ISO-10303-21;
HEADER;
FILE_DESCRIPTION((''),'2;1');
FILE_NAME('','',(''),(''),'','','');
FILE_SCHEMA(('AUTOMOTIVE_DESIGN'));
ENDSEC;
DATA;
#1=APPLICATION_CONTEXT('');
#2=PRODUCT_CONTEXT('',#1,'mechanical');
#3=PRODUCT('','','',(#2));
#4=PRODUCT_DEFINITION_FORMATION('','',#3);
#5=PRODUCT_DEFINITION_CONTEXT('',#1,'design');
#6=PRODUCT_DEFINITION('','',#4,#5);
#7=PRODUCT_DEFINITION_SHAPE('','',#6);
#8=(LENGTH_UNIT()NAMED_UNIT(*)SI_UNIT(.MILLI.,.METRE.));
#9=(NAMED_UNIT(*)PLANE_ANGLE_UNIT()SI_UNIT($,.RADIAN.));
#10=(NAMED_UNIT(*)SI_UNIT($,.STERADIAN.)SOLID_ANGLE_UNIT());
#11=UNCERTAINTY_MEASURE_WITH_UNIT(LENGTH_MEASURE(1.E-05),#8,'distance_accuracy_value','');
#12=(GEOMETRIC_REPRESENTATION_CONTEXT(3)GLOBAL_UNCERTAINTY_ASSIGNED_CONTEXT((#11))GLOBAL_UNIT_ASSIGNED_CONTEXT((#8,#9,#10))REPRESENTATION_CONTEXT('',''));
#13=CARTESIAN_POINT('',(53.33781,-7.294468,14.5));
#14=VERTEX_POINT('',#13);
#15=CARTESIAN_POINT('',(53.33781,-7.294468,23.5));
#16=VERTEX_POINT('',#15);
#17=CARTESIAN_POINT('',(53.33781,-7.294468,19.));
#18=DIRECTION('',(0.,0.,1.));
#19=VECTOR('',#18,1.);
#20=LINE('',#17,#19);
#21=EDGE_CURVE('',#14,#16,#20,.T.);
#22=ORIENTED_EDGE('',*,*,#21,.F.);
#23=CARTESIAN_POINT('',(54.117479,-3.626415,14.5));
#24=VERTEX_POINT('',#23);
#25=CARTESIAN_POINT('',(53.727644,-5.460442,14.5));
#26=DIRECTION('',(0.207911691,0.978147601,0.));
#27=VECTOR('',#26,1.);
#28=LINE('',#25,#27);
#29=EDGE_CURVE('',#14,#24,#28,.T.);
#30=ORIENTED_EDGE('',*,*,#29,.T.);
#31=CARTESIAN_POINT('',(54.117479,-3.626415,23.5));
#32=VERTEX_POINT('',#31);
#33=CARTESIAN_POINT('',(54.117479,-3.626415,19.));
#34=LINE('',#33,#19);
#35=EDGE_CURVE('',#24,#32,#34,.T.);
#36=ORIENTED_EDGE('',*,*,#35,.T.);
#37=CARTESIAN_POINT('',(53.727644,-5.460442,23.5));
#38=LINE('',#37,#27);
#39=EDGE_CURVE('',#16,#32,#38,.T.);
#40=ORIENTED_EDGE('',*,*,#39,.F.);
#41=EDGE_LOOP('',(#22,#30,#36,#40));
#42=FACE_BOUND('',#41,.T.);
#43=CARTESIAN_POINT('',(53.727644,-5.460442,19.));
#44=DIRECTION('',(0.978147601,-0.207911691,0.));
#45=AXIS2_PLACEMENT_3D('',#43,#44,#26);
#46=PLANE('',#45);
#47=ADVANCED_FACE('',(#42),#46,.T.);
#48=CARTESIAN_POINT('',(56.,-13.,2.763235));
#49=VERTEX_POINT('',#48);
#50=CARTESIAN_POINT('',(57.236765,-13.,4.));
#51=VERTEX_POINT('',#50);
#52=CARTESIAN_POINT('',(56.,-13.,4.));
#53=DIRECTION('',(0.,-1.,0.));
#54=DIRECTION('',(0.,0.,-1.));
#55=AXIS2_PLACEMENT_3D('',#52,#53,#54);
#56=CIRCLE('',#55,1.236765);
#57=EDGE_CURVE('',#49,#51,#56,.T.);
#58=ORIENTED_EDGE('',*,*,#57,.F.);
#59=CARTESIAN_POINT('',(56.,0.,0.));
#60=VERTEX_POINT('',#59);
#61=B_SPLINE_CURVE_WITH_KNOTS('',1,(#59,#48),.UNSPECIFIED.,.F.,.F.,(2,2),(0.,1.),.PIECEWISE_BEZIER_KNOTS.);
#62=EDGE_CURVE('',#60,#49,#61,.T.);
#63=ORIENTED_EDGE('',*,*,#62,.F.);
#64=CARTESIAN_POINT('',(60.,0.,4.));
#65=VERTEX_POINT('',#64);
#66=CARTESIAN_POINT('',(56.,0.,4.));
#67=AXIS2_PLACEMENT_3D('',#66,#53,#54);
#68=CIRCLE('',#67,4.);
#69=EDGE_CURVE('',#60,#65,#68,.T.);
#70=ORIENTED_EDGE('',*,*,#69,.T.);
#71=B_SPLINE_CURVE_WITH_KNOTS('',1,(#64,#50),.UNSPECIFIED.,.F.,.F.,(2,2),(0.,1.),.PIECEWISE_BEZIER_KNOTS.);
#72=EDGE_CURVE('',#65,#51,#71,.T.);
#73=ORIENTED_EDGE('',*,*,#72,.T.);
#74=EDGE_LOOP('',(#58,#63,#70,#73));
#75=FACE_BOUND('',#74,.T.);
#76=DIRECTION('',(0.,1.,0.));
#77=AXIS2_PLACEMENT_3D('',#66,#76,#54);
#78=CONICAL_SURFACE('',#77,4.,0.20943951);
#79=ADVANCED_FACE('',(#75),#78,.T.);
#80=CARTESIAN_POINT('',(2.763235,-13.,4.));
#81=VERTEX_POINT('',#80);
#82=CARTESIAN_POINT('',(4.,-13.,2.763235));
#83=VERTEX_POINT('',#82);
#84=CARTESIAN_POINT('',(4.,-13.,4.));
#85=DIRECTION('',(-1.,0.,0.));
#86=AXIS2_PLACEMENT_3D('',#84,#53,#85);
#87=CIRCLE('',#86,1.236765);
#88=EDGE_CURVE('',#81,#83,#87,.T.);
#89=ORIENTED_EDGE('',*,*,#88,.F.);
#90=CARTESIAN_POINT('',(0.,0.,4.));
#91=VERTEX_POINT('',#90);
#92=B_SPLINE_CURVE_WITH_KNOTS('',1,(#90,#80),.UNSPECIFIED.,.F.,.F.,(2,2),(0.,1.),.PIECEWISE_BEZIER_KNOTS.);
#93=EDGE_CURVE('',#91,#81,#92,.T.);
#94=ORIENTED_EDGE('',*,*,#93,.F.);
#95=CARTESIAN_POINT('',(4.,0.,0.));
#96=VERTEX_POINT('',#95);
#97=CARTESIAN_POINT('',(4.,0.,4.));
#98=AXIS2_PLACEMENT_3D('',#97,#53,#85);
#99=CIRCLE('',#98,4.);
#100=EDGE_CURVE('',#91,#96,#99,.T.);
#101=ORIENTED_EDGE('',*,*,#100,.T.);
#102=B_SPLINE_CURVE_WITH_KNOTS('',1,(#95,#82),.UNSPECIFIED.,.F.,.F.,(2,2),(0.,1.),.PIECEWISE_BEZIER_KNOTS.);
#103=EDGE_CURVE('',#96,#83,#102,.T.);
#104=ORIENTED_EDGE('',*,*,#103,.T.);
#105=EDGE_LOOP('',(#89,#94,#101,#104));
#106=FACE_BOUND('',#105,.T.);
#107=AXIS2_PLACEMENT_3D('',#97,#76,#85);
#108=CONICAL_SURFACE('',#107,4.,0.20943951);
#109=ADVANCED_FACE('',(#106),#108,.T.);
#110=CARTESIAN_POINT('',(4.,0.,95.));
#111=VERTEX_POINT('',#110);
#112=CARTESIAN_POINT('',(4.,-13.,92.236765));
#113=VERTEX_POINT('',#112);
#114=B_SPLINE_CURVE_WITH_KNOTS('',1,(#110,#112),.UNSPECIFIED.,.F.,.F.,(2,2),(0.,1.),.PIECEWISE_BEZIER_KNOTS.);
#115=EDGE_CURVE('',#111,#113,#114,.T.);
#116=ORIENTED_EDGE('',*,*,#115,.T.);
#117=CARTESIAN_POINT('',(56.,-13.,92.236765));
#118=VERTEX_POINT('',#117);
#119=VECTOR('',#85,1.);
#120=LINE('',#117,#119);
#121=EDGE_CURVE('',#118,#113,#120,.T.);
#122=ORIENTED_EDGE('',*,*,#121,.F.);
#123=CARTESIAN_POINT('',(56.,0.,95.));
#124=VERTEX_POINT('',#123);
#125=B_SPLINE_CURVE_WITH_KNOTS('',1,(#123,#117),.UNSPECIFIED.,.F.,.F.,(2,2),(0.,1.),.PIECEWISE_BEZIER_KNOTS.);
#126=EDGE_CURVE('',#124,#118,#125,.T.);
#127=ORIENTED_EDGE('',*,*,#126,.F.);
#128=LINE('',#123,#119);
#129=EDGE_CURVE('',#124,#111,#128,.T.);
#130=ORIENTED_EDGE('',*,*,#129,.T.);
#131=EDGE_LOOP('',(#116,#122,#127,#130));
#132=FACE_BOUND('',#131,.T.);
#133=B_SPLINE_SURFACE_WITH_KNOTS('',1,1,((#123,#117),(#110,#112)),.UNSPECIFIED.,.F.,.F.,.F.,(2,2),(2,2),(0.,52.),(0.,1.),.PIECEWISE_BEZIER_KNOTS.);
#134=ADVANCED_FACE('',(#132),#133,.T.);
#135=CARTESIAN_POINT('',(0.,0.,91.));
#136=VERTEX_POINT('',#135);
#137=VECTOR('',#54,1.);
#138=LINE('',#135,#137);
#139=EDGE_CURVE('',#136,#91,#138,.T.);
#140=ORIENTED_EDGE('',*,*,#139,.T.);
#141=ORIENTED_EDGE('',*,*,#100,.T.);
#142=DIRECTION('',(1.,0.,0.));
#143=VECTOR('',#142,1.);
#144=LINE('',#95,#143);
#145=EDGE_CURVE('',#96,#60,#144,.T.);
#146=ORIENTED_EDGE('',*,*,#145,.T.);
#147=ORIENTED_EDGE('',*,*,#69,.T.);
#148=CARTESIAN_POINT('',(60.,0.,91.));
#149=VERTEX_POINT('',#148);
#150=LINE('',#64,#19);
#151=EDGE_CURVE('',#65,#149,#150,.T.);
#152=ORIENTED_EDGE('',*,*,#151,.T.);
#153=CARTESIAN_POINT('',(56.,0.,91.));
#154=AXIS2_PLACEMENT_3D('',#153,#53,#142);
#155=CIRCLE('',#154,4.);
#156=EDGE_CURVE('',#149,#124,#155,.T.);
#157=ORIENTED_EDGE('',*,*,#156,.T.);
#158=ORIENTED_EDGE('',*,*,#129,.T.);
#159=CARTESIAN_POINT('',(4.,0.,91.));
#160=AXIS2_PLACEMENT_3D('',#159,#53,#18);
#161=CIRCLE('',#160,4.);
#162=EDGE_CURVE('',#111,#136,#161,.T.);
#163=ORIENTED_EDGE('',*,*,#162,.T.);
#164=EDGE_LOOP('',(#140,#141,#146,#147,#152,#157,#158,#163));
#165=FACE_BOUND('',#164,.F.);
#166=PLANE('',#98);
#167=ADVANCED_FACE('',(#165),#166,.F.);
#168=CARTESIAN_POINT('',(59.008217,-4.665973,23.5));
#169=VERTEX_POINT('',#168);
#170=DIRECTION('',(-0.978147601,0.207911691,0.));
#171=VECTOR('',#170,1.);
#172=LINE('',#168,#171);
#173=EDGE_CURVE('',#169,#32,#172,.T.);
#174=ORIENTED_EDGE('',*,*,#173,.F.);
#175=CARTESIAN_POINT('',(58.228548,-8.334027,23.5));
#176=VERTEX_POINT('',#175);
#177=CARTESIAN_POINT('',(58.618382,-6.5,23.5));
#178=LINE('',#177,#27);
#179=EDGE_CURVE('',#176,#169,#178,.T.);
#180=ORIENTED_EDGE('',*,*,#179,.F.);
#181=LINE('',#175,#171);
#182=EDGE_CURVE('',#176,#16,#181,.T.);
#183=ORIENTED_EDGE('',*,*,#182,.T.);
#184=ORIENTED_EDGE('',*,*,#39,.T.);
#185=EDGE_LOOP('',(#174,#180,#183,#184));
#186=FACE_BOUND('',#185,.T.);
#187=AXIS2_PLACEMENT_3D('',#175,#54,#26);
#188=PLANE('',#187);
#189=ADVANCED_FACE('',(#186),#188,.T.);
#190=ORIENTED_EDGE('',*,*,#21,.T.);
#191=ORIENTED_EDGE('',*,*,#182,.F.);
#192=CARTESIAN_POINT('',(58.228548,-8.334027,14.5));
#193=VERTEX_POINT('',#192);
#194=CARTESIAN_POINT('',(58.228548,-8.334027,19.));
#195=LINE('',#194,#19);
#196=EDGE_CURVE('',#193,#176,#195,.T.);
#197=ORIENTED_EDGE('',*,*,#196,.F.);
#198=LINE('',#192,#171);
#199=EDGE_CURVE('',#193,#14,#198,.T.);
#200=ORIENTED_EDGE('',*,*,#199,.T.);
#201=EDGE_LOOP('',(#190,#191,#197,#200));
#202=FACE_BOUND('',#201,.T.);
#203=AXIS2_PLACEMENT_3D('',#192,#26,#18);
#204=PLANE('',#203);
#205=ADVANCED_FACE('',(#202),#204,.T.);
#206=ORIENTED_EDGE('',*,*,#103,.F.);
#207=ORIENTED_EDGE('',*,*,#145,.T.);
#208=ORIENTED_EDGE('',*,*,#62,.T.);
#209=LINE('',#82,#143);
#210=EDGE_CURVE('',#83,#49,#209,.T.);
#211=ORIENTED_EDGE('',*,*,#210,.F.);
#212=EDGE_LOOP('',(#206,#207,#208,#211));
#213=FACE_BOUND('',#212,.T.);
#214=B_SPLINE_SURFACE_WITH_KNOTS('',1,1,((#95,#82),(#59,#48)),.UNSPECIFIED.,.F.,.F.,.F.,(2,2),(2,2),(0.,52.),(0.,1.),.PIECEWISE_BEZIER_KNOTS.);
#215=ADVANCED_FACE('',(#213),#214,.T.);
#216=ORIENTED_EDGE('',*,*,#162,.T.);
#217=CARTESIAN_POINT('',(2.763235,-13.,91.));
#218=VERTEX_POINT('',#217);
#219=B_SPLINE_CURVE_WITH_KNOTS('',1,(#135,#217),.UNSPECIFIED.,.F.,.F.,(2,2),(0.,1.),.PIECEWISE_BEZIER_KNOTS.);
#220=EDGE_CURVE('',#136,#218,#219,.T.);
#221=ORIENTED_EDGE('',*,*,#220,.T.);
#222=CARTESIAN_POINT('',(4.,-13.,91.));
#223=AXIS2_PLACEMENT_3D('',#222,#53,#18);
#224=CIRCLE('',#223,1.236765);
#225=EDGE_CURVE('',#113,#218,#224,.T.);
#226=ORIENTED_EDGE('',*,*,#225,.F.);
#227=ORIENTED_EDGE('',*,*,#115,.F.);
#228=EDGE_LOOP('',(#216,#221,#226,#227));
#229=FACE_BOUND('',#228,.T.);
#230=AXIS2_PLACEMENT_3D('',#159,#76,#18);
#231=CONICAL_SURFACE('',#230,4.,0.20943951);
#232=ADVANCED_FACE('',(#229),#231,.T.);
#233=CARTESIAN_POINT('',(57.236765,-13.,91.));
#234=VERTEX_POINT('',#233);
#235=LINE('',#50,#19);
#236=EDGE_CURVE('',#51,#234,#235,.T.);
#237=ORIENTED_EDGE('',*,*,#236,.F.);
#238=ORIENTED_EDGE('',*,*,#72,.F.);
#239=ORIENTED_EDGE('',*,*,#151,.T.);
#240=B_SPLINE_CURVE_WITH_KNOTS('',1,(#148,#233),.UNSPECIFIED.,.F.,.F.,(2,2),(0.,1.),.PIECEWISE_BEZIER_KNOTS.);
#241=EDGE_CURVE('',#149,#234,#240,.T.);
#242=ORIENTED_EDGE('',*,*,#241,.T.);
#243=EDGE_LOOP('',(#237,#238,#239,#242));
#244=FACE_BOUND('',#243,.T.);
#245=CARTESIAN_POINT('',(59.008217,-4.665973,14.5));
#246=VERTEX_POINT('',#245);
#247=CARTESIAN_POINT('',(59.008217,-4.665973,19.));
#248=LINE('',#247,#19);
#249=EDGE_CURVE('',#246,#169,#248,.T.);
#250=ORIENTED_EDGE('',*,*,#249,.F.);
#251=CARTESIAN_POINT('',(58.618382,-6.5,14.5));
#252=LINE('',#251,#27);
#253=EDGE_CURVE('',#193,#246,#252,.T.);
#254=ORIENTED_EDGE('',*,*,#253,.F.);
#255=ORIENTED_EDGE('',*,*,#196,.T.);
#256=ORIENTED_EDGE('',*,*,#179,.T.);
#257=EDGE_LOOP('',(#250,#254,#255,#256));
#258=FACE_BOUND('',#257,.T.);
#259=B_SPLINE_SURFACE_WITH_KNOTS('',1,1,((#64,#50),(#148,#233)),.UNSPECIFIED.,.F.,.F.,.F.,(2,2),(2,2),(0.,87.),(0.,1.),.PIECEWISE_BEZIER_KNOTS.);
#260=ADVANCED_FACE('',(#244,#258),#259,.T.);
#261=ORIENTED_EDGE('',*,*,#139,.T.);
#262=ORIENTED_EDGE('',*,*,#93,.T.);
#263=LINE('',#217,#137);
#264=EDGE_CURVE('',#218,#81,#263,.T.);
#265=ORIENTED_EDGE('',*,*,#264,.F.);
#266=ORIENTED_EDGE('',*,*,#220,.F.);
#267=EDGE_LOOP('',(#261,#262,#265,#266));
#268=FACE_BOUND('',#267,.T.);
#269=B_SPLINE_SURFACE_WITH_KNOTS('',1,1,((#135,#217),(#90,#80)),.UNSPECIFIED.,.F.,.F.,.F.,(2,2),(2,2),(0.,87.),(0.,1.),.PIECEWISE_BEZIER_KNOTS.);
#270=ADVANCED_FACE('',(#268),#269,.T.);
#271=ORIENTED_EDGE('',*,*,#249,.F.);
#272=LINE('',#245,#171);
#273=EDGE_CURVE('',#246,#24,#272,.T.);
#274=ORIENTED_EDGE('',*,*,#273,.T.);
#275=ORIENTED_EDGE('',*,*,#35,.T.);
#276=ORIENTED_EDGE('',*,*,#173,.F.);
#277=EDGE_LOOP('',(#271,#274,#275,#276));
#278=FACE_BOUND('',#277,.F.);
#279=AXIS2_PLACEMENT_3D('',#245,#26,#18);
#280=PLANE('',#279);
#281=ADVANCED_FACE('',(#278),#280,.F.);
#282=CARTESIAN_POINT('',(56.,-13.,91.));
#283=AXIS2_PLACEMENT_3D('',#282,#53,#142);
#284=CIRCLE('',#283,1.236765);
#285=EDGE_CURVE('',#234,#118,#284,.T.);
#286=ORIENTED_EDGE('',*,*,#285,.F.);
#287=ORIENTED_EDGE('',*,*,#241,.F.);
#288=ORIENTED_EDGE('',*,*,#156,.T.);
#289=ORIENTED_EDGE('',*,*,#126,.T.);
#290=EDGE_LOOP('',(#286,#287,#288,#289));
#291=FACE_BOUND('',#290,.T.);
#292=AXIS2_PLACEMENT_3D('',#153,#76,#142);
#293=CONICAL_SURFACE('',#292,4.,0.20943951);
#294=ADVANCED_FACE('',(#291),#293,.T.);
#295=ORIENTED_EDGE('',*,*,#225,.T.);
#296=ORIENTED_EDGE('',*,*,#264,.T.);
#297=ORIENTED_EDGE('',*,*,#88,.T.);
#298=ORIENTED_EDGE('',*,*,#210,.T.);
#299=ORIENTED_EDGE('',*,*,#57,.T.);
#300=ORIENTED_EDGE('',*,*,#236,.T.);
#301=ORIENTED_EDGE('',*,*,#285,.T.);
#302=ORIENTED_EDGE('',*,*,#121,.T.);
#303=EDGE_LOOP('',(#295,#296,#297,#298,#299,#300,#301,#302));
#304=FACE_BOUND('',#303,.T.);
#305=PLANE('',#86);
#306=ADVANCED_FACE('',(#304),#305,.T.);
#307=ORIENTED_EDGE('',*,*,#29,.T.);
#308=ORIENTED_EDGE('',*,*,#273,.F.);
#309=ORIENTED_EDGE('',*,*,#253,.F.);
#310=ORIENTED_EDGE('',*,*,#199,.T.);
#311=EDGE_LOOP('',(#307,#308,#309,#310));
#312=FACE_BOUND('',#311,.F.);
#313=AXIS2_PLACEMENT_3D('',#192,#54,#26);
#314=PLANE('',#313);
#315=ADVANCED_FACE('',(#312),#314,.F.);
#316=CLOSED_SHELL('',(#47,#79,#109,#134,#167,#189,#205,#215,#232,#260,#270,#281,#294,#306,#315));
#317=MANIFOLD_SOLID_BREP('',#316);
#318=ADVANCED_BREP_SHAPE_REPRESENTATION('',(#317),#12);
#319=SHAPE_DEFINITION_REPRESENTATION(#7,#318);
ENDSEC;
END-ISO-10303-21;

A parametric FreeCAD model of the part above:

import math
import FreeCAD as App
import Part
import Sketcher


def add_polygon(sketch, points):
    """Adds a closed chain of lines whose ends are joined by coincident constraints."""
    first, n = sketch.GeometryCount, len(points)
    for a, b in zip(points, points[1:] + points[:1]):
        sketch.addGeometry(Part.LineSegment(App.Vector(*a, 0), App.Vector(*b, 0)), False)
    for i in range(n):
        sketch.addConstraint(Sketcher.Constraint("Coincident", first + i, 2, first + (i + 1) % n, 1))

doc = App.newDocument("Part")
body = doc.addObject("PartDesign::Body", "Body")

# Sketch on XZ plane
sketch1 = body.newObject("Sketcher::SketchObject", "Sketch")
sketch1.AttachmentSupport = (doc.getObject("XZ_Plane"), [""])
sketch1.MapMode = "FlatFace"
sketch1.addGeometry([
    Part.ArcOfCircle(Part.Circle(App.Vector(4, 4, 0), App.Vector(0, 0, 1), 4), math.radians(180), math.radians(270)),  # 0
    Part.LineSegment(App.Vector(4, 0, 0), App.Vector(56, 0, 0)),  # 1
    Part.ArcOfCircle(Part.Circle(App.Vector(56, 4, 0), App.Vector(0, 0, 1), 4), math.radians(-90), math.radians(0)),  # 2
    Part.LineSegment(App.Vector(60, 4, 0), App.Vector(60, 91, 0)),  # 3
    Part.ArcOfCircle(Part.Circle(App.Vector(56, 91, 0), App.Vector(0, 0, 1), 4), math.radians(0), math.radians(90)),  # 4
    Part.LineSegment(App.Vector(56, 95, 0), App.Vector(4, 95, 0)),  # 5
    Part.ArcOfCircle(Part.Circle(App.Vector(4, 91, 0), App.Vector(0, 0, 1), 4), math.radians(90), math.radians(180)),  # 6
    Part.LineSegment(App.Vector(0, 91, 0), App.Vector(0, 4, 0)),  # 7
], False)
sketch1.addConstraint([
    Sketcher.Constraint("Tangent", 0, 2, 1, 1),
    Sketcher.Constraint("Tangent", 1, 2, 2, 1),
    Sketcher.Constraint("Tangent", 2, 2, 3, 1),
    Sketcher.Constraint("Tangent", 3, 2, 4, 1),
    Sketcher.Constraint("Tangent", 4, 2, 5, 1),
    Sketcher.Constraint("Tangent", 5, 2, 6, 1),
    Sketcher.Constraint("Tangent", 6, 2, 7, 1),
    Sketcher.Constraint("Tangent", 7, 2, 0, 1),
    Sketcher.Constraint("Horizontal", 1),
    Sketcher.Constraint("Vertical", 3),
    Sketcher.Constraint("Horizontal", 5),
    Sketcher.Constraint("Vertical", 7),
    Sketcher.Constraint("Equal", 0, 2),
    Sketcher.Constraint("Equal", 2, 4),
    Sketcher.Constraint("Equal", 4, 6),
    Sketcher.Constraint("PointOnObject", 0, 2, -1),
    Sketcher.Constraint("PointOnObject", 6, 2, -2),
    Sketcher.Constraint("Radius", 0, 4.0),
    Sketcher.Constraint("DistanceX", 1, 1, 1, 2, 52.0),
    Sketcher.Constraint("DistanceY", 3, 1, 3, 2, 87.0),
])
pad1 = body.newObject("PartDesign::Pad", "Pad")
pad1.Profile = sketch1
pad1.Length = 13
pad1.TaperAngle = -12

# Sketch on an angled plane
sketch2 = body.newObject("Sketcher::SketchObject", "Sketch001")
sketch2.Placement = App.Placement(App.Vector(57.406364, -12.202099, 0), App.Rotation(App.Vector(0.207911691, 0.978147601, 0), App.Vector(0, 0, 1.000000001), App.Vector(0.978147601, -0.207911691, 0), "ZXY"))
add_polygon(sketch2, [(3.954488, 23.5), (3.954488, 14.5), (7.704488, 14.5), (7.704488, 23.5)])  # lines 0-3
sketch2.addConstraint([
    Sketcher.Constraint("Vertical", 0),
    Sketcher.Constraint("Horizontal", 1),
    Sketcher.Constraint("Vertical", 2),
    Sketcher.Constraint("Horizontal", 3),
    Sketcher.Constraint("DistanceY", 0, 2, 0, 1, 9.0),
    Sketcher.Constraint("DistanceX", 1, 1, 1, 2, 3.75),
    Sketcher.Constraint("DistanceY", -1, 1, 0, 2, 14.5),
    Sketcher.Constraint("DistanceX", -1, 1, 0, 2, 3.954488),
])
pocket1 = body.newObject("PartDesign::Pocket", "Pocket")
pocket1.Profile = sketch2
pocket1.Length = 5

doc.recompute()
